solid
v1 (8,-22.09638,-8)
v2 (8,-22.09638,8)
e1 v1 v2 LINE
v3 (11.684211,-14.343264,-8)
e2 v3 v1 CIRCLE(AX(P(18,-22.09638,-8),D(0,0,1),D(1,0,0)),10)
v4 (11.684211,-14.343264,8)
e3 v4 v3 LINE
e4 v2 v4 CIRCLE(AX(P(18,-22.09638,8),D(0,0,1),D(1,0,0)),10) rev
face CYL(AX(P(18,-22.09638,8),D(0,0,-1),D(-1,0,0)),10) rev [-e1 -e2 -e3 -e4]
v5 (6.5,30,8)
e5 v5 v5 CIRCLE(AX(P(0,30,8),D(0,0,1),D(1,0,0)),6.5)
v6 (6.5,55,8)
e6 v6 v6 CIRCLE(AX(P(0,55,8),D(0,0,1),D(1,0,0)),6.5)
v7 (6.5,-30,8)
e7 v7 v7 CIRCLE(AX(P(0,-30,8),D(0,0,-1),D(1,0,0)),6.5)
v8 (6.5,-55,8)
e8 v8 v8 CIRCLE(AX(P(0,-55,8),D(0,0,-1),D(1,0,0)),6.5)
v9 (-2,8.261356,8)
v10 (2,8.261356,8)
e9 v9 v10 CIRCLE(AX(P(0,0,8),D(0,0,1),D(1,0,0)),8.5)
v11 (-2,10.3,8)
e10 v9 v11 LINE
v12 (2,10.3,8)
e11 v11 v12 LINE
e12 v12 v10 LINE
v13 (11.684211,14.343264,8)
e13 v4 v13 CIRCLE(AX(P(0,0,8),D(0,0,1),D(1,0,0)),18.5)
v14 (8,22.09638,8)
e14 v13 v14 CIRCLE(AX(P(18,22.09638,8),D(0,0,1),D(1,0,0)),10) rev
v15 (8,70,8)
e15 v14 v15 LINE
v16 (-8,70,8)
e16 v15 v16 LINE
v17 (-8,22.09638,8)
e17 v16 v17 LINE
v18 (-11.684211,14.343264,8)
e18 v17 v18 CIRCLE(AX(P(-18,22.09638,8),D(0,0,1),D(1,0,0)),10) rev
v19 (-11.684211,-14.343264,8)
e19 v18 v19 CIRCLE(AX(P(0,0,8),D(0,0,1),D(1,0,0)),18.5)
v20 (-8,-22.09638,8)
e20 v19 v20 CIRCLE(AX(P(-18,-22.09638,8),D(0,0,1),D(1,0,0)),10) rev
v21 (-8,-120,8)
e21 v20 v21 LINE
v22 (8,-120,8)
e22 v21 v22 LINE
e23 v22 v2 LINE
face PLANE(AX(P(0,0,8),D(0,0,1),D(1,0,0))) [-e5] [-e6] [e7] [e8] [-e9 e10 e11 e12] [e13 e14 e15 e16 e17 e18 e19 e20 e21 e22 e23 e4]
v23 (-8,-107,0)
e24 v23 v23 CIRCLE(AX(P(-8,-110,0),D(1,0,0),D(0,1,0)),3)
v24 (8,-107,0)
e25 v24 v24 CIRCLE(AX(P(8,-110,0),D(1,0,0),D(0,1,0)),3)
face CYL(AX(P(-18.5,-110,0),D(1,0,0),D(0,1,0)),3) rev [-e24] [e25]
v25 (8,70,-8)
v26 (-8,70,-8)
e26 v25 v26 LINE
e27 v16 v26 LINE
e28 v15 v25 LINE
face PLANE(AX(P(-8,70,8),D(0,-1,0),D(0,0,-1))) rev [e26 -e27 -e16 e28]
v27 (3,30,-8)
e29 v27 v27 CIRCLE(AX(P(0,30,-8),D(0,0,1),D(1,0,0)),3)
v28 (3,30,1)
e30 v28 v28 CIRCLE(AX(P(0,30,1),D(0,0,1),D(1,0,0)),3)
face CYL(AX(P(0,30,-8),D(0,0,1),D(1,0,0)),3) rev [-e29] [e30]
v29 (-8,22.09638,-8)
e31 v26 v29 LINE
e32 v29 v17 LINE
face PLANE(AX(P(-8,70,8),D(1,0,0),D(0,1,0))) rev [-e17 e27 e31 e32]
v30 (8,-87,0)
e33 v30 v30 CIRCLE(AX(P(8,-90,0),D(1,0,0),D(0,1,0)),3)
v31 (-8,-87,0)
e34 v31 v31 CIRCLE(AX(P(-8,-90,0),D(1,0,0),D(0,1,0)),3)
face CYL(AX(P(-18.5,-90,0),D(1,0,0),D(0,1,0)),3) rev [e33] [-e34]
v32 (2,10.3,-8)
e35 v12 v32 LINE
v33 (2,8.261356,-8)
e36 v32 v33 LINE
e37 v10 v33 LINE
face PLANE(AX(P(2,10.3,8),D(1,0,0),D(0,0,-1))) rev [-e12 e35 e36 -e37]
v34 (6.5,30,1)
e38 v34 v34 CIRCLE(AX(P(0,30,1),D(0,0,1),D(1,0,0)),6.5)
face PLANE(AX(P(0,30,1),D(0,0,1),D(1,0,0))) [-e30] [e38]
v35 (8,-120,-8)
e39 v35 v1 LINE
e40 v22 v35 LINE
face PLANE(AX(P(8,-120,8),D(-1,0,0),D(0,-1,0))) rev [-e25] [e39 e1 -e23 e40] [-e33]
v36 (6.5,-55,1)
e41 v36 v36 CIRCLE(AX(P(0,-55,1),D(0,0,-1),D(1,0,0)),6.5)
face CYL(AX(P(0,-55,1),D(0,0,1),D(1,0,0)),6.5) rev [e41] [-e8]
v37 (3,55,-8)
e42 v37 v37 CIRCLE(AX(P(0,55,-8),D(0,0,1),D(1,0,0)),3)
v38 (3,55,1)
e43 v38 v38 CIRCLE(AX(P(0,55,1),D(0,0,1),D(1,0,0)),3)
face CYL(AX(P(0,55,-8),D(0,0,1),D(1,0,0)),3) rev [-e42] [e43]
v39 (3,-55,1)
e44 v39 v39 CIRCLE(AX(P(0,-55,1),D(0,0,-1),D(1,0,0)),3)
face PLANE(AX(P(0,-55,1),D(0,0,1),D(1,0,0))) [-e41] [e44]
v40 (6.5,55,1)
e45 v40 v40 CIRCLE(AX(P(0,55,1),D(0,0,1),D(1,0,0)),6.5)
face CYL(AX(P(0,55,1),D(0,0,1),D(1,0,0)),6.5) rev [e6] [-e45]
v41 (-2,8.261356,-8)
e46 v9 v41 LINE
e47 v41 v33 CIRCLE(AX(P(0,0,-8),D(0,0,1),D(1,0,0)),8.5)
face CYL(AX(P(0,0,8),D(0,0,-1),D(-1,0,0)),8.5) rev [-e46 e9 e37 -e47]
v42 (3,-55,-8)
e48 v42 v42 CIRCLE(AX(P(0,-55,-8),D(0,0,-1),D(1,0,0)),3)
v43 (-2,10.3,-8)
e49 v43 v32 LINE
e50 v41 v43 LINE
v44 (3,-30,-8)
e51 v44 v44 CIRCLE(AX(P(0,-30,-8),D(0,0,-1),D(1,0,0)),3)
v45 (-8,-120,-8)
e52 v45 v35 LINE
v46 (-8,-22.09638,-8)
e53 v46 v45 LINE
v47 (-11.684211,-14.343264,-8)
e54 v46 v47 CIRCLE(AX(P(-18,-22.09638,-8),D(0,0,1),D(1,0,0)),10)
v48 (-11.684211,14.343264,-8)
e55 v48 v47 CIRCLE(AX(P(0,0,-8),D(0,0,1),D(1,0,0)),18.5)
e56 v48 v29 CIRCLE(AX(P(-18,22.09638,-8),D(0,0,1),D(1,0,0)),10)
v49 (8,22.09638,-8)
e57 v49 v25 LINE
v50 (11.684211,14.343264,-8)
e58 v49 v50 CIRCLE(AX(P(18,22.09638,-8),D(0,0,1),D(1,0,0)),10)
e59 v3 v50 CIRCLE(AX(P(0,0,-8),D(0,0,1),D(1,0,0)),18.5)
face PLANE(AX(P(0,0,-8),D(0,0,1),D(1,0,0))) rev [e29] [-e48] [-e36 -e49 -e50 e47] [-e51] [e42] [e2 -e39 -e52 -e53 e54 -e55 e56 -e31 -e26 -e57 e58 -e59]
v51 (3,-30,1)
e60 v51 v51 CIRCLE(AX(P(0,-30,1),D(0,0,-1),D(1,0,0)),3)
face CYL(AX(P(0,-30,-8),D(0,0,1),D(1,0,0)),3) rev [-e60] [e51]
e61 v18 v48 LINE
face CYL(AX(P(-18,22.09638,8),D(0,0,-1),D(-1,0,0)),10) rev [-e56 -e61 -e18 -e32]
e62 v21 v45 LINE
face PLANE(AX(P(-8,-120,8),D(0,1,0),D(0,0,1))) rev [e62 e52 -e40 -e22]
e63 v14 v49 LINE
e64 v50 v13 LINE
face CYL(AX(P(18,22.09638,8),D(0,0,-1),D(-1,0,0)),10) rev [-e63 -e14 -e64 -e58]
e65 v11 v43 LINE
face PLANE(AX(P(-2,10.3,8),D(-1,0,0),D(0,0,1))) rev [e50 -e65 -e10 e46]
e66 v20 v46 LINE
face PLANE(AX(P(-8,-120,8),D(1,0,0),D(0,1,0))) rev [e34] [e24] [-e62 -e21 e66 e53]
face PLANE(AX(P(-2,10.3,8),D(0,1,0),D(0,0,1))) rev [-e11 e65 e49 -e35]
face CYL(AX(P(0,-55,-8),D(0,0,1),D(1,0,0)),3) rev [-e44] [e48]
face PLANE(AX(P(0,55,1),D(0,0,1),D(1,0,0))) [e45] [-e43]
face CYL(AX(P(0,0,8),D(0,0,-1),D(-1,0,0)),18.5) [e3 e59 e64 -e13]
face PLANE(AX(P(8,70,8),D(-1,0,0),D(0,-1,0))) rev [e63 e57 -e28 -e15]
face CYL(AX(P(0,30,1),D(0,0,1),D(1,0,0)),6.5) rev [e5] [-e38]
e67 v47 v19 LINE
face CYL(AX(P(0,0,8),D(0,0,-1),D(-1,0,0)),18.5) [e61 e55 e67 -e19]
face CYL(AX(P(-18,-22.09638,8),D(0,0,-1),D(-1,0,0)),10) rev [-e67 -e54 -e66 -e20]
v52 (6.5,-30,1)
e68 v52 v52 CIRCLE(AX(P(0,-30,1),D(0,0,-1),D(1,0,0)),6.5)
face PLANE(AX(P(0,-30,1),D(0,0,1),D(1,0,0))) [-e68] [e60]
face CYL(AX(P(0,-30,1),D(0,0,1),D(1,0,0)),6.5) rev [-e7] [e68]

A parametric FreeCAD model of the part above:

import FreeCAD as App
import Part
import Sketcher
from FreeCAD import Vector


def edges_at(feature, points):
    """Names of the edges that pass closest to the given points."""
    edges = feature.Shape.Edges
    near = lambda p: min(range(len(edges)), key=lambda i: edges[i].distToShape(Part.Vertex(*p))[0])
    return sorted({f"Edge{near(p) + 1}" for p in points})

doc = App.newDocument("Part")
body = doc.addObject("PartDesign::Body", "Body")

sketch1 = doc.addObject("Sketcher::SketchObject", "Sketch")
body.addObject(sketch1)
sketch1.AttachmentSupport = (doc.XY_Plane, [""])
sketch1.MapMode = "FlatFace"
sketch1.addGeometry([
    Part.Circle(Vector(0, 0, 0), Vector(0, 0, 1), 18),
    Part.Circle(Vector(0, 0, 0), Vector(0, 0, 1), 8),
], False)
sketch1.addConstraint([
    Sketcher.Constraint("Coincident", 0, 3, -1, 1),
    Sketcher.Constraint("Coincident", 1, 3, -1, 1),
    Sketcher.Constraint("Diameter", 0, 37.0),
    Sketcher.Constraint("Diameter", 1, 17.0),
])
pad1 = doc.addObject("PartDesign::Pad", "Pad")
body.addObject(pad1)
pad1.Profile = sketch1
pad1.Length = 16
pad1.Midplane = True

sketch2 = doc.addObject("Sketcher::SketchObject", "Sketch001")
body.addObject(sketch2)
sketch2.AttachmentSupport = (doc.XY_Plane, [""])
sketch2.MapMode = "FlatFace"
sketch2.addGeometry([
    Part.LineSegment(Vector(-8, 70, 0), Vector(-8, 17, 0)),
    Part.LineSegment(Vector(-8, 17, 0), Vector(8, 17, 0)),
    Part.LineSegment(Vector(8, 17, 0), Vector(8, 70, 0)),
    Part.LineSegment(Vector(8, 70, 0), Vector(-8, 70, 0)),
], False)
sketch2.addConstraint([
    Sketcher.Constraint("Coincident", 0, 2, 1, 1),
    Sketcher.Constraint("Coincident", 1, 2, 2, 1),
    Sketcher.Constraint("Coincident", 2, 2, 3, 1),
    Sketcher.Constraint("Coincident", 3, 2, 0, 1),
    Sketcher.Constraint("Vertical", 0),
    Sketcher.Constraint("Horizontal", 1),
    Sketcher.Constraint("Vertical", 2),
    Sketcher.Constraint("Horizontal", 3),
    Sketcher.Constraint("DistanceX", 1, 1, 1, 2, 16.0),
    Sketcher.Constraint("DistanceX", 0, 2, -1, 1, 8.0),
    Sketcher.Constraint("DistanceY", -1, 1, 2, 2, 70.0),
    Sketcher.Constraint("DistanceY", 0, 2, 0, 1, 53.319173),
])
pad2 = doc.addObject("PartDesign::Pad", "Pad001")
body.addObject(pad2)
pad2.Profile = sketch2
pad2.Length = 16
pad2.Midplane = True

sketch3 = doc.addObject("Sketcher::SketchObject", "Sketch002")
body.addObject(sketch3)
sketch3.AttachmentSupport = (doc.XY_Plane, [""])
sketch3.MapMode = "FlatFace"
sketch3.addGeometry([
    Part.LineSegment(Vector(-8, -17, 0), Vector(-8, -120, 0)),
    Part.LineSegment(Vector(-8, -120, 0), Vector(8, -120, 0)),
    Part.LineSegment(Vector(8, -120, 0), Vector(8, -17, 0)),
    Part.LineSegment(Vector(8, -17, 0), Vector(-8, -17, 0)),
], False)
sketch3.addConstraint([
    Sketcher.Constraint("Coincident", 0, 2, 1, 1),
    Sketcher.Constraint("Coincident", 1, 2, 2, 1),
    Sketcher.Constraint("Coincident", 2, 2, 3, 1),
    Sketcher.Constraint("Coincident", 3, 2, 0, 1),
    Sketcher.Constraint("Vertical", 0),
    Sketcher.Constraint("Horizontal", 1),
    Sketcher.Constraint("Vertical", 2),
    Sketcher.Constraint("Horizontal", 3),
    Sketcher.Constraint("DistanceX", 1, 1, 1, 2, 16.0),
    Sketcher.Constraint("DistanceX", 0, 2, -1, 1, 8.0),
    Sketcher.Constraint("DistanceY", 0, 2, -1, 1, 120.0),
    Sketcher.Constraint("DistanceY", 0, 2, 0, 1, 103.319173),
])
pad3 = doc.addObject("PartDesign::Pad", "Pad002")
body.addObject(pad3)
pad3.Profile = sketch3
pad3.Length = 16
pad3.Midplane = True

sketch4 = doc.addObject("Sketcher::SketchObject", "Sketch003")
body.addObject(sketch4)
sketch4.AttachmentSupport = (doc.XY_Plane, [""])
sketch4.MapMode = "FlatFace"
sketch4.AttachmentOffset = App.Placement(Vector(0, 0, -8), App.Rotation())
sketch4.addGeometry([
    Part.LineSegment(Vector(2, 10.3, 0), Vector(2, 8.3, 0)),
    Part.LineSegment(Vector(2, 8.3, 0), Vector(-2, 8.3, 0)),
    Part.LineSegment(Vector(-2, 8.3, 0), Vector(-2, 10.3, 0)),
    Part.LineSegment(Vector(-2, 10.3, 0), Vector(2, 10.3, 0)),
], False)
sketch4.addConstraint([
    Sketcher.Constraint("Coincident", 0, 2, 1, 1),
    Sketcher.Constraint("Coincident", 1, 2, 2, 1),
    Sketcher.Constraint("Coincident", 2, 2, 3, 1),
    Sketcher.Constraint("Coincident", 3, 2, 0, 1),
    Sketcher.Constraint("Vertical", 0),
    Sketcher.Constraint("Horizontal", 1),
    Sketcher.Constraint("Vertical", 2),
    Sketcher.Constraint("Horizontal", 3),
    Sketcher.Constraint("DistanceX", 1, 2, 1, 1, 4.0),
    Sketcher.Constraint("DistanceX", -1, 1, 0, 2, 2.0),
    Sketcher.Constraint("DistanceY", -1, 1, 2, 2, 10.3),
    Sketcher.Constraint("DistanceY", 0, 2, 0, 1, 2.038644),
])
pocket1 = doc.addObject("PartDesign::Pocket", "Pocket")
body.addObject(pocket1)
pocket1.Profile = sketch4
pocket1.Type = "ThroughAll"
pocket1.Reversed = True
doc.recompute()

fillet = doc.addObject("PartDesign::Fillet", "Fillet")
body.addObject(fillet)
fillet.Base = (pocket1, edges_at(pocket1, [
    (8, 16.681, 0),
    (-8, 16.681, 0),
    (8, -16.681, 0),
    (-8, -16.681, 0),
]))
fillet.Radius = 10

sketch5 = doc.addObject("Sketcher::SketchObject", "Sketch004")
body.addObject(sketch5)
sketch5.AttachmentSupport = (doc.XY_Plane, [""])
sketch5.MapMode = "FlatFace"
sketch5.AttachmentOffset = App.Placement(Vector(0, 0, 8), App.Rotation())
sketch5.addGeometry([
    Part.Circle(Vector(0, 55, 0), Vector(0, 0, 1), 6),
    Part.Circle(Vector(0, 30, 0), Vector(0, 0, 1), 6),
], False)
sketch5.addConstraint([
    Sketcher.Constraint("Equal", 0, 1),
    Sketcher.Constraint("PointOnObject", 0, 3, -2),
    Sketcher.Constraint("PointOnObject", 1, 3, -2),
    Sketcher.Constraint("Diameter", 0, 13.0),
    Sketcher.Constraint("DistanceY", -1, 1, 0, 3, 55.0),
    Sketcher.Constraint("DistanceY", -1, 1, 1, 3, 30.0),
])
pocket2 = doc.addObject("PartDesign::Pocket", "Pocket001")
body.addObject(pocket2)
pocket2.Profile = sketch5
pocket2.Length = 7
doc.recompute()

mirrored = doc.addObject("PartDesign::Mirrored", "Mirrored")
body.addObject(mirrored)
mirrored.Originals = [pocket2]
mirrored.MirrorPlane = (doc.XZ_Plane, [""])
body.Tip = mirrored

sketch6 = doc.addObject("Sketcher::SketchObject", "Sketch005")
body.addObject(sketch6)
sketch6.AttachmentSupport = (doc.XY_Plane, [""])
sketch6.MapMode = "FlatFace"
sketch6.AttachmentOffset = App.Placement(Vector(0, 0, 1), App.Rotation())
sketch6.addGeometry([
    Part.Circle(Vector(0, 55, 0), Vector(0, 0, 1), 3),
    Part.Circle(Vector(0, 30, 0), Vector(0, 0, 1), 3),
], False)
sketch6.addConstraint([
    Sketcher.Constraint("Equal", 0, 1),
    Sketcher.Constraint("PointOnObject", 0, 3, -2),
    Sketcher.Constraint("PointOnObject", 1, 3, -2),
    Sketcher.Constraint("Diameter", 0, 6.0),
    Sketcher.Constraint("DistanceY", -1, 1, 0, 3, 55.0),
    Sketcher.Constraint("DistanceY", -1, 1, 1, 3, 30.0),
])
pocket3 = doc.addObject("PartDesign::Pocket", "Pocket002")
body.addObject(pocket3)
pocket3.Profile = sketch6
pocket3.Type = "ThroughAll"
doc.recompute()

mirrored2 = doc.addObject("PartDesign::Mirrored", "Mirrored001")
body.addObject(mirrored2)
mirrored2.Originals = [pocket3]
mirrored2.MirrorPlane = (doc.XZ_Plane, [""])
body.Tip = mirrored2

sketch7 = doc.addObject("Sketcher::SketchObject", "Sketch006")
body.addObject(sketch7)
sketch7.AttachmentSupport = (doc.YZ_Plane, [""])
sketch7.MapMode = "FlatFace"
sketch7.AttachmentOffset = App.Placement(Vector(0, 0, 8), App.Rotation())
sketch7.addGeometry([
    Part.Circle(Vector(-110, 0, 0), Vector(0, 0, 1), 3),
    Part.Circle(Vector(-90, 0, 0), Vector(0, 0, 1), 3),
], False)
sketch7.addConstraint([
    Sketcher.Constraint("Equal", 0, 1),
    Sketcher.Constraint("PointOnObject", 0, 3, -1),
    Sketcher.Constraint("PointOnObject", 1, 3, -1),
    Sketcher.Constraint("Diameter", 0, 6.0),
    Sketcher.Constraint("DistanceX", 0, 3, -1, 1, 110.0),
    Sketcher.Constraint("DistanceX", 1, 3, -1, 1, 90.0),
])
pocket4 = doc.addObject("PartDesign::Pocket", "Pocket003")
body.addObject(pocket4)
pocket4.Profile = sketch7
pocket4.Type = "ThroughAll"

doc.recompute()
